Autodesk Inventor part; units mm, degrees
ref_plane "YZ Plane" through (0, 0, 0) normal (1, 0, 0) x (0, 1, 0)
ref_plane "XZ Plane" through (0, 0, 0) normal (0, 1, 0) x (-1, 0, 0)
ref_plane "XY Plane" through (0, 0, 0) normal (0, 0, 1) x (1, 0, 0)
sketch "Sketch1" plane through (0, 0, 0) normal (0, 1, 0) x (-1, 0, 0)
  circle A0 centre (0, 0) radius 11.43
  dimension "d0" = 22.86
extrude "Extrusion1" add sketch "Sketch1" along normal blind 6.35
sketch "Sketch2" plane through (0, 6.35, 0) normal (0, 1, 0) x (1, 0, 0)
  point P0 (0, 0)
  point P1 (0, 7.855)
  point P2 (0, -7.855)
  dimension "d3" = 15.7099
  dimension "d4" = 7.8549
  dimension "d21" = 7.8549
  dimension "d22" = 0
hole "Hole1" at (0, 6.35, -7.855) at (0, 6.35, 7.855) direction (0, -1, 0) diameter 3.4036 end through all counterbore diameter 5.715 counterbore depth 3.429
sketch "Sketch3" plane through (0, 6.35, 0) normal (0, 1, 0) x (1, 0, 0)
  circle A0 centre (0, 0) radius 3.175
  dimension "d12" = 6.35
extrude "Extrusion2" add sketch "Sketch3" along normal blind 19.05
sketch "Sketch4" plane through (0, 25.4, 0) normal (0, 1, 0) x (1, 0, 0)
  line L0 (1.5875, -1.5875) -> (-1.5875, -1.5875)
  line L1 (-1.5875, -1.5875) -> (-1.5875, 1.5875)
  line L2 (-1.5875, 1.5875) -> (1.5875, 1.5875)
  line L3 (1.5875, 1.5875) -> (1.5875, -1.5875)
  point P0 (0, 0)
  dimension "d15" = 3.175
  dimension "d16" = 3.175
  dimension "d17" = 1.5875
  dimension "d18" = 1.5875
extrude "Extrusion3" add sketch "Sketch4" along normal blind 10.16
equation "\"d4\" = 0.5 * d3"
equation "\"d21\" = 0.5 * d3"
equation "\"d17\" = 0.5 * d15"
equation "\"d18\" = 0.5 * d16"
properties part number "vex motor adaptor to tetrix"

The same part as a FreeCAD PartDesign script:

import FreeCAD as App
import Part
import Sketcher
from FreeCAD import Vector
Q = App.Units.Quantity

doc = App.newDocument("Part")
body = doc.addObject("PartDesign::Body", "Body")

# Sketch on XZ plane
sketch1 = body.newObject("Sketcher::SketchObject", "Sketch")
sketch1.AttachmentSupport = (doc.getObject("XZ_Plane"), [""])
sketch1.MapMode = "FlatFace"
sketch1.addGeometry(Part.Circle(Vector(0, 0, 0), Vector(0, 0, 1), 11.43), False)
sketch1.addConstraint([
    Sketcher.Constraint("Coincident", 0, 3, -1, 1),
    Sketcher.Constraint("Diameter", 0, Q("0.9 in")),
])
pad1 = body.newObject("PartDesign::Pad", "Pad")
pad1.Profile = sketch1
pad1.Length = Q("0.25 in")
pad1.Reversed = True

# Sketch on XZ plane
sketch2 = body.newObject("Sketcher::SketchObject", "Sketch001")
sketch2.AttachmentSupport = (doc.getObject("XZ_Plane"), [""])
sketch2.MapMode = "FlatFace"
sketch2.AttachmentOffset = App.Placement(Vector(0, 0, -0.25 * 25.4), App.Rotation())
sketch2.addGeometry([
    Part.Circle(Vector(0, -7.855, 0), Vector(0, 0, 1), 1.7018),
    Part.Circle(Vector(0, 7.855, 0), Vector(0, 0, 1), 1.7018),
], False)
sketch2.addConstraint([
    Sketcher.Constraint("Equal", 0, 1),
    Sketcher.Constraint("Symmetric", 0, 3, 1, 3, -1, 1),
    Sketcher.Constraint("PointOnObject", 0, 3, -2),
    Sketcher.Constraint("Diameter", 0, Q("0.134 in")),
    Sketcher.Constraint("DistanceY", 0, 3, 1, 3, Q("0.6185 in")),
])
doc.recompute()
hole = body.newObject("PartDesign::Hole", "Hole")
hole.Profile = sketch2
hole.ThreadType = "None"
hole.Diameter = Q("0.134 in")
hole.DepthType = "ThroughAll"
hole.HoleCutType = "Counterbore"
hole.HoleCutDiameter = Q("0.225 in")
hole.HoleCutDepth = Q("0.135 in")
hole.Reversed = True

# Sketch on XZ plane
sketch3 = body.newObject("Sketcher::SketchObject", "Sketch002")
sketch3.AttachmentSupport = (doc.getObject("XZ_Plane"), [""])
sketch3.MapMode = "FlatFace"
sketch3.AttachmentOffset = App.Placement(Vector(0, 0, -0.25 * 25.4), App.Rotation())
sketch3.addGeometry(Part.Circle(Vector(0, 0, 0), Vector(0, 0, 1), 3.175), False)
sketch3.addConstraint([
    Sketcher.Constraint("Coincident", 0, 3, -1, 1),
    Sketcher.Constraint("Diameter", 0, Q("0.25 in")),
])
pad2 = body.newObject("PartDesign::Pad", "Pad001")
pad2.Profile = sketch3
pad2.Length = Q("0.75 in")
pad2.Reversed = True

# Sketch on XZ plane
sketch4 = body.newObject("Sketcher::SketchObject", "Sketch003")
sketch4.AttachmentSupport = (doc.getObject("XZ_Plane"), [""])
sketch4.MapMode = "FlatFace"
sketch4.AttachmentOffset = App.Placement(Vector(0, 0, -1 * 25.4), App.Rotation())
sketch4.addGeometry([
    Part.LineSegment(Vector(-1.5875, 1.5875, 0), Vector(1.5875, 1.5875, 0)),
    Part.LineSegment(Vector(1.5875, 1.5875, 0), Vector(1.5875, -1.5875, 0)),
    Part.LineSegment(Vector(1.5875, -1.5875, 0), Vector(-1.5875, -1.5875, 0)),
    Part.LineSegment(Vector(-1.5875, -1.5875, 0), Vector(-1.5875, 1.5875, 0)),
], False)
sketch4.addConstraint([
    Sketcher.Constraint("Coincident", 0, 2, 1, 1),
    Sketcher.Constraint("Coincident", 1, 2, 2, 1),
    Sketcher.Constraint("Coincident", 2, 2, 3, 1),
    Sketcher.Constraint("Coincident", 3, 2, 0, 1),
    Sketcher.Constraint("Horizontal", 0),
    Sketcher.Constraint("Vertical", 1),
    Sketcher.Constraint("Horizontal", 2),
    Sketcher.Constraint("Vertical", 3),
    Sketcher.Constraint("Symmetric", 0, 2, 2, 2, -1, 1),
    Sketcher.Constraint("Equal", 2, 1),
    Sketcher.Constraint("DistanceX", 0, 1, 0, 2, Q("0.125 in")),
])
pad3 = body.newObject("PartDesign::Pad", "Pad002")
pad3.Profile = sketch4
pad3.Length = Q("0.4 in")
pad3.Reversed = True

doc.recompute()
